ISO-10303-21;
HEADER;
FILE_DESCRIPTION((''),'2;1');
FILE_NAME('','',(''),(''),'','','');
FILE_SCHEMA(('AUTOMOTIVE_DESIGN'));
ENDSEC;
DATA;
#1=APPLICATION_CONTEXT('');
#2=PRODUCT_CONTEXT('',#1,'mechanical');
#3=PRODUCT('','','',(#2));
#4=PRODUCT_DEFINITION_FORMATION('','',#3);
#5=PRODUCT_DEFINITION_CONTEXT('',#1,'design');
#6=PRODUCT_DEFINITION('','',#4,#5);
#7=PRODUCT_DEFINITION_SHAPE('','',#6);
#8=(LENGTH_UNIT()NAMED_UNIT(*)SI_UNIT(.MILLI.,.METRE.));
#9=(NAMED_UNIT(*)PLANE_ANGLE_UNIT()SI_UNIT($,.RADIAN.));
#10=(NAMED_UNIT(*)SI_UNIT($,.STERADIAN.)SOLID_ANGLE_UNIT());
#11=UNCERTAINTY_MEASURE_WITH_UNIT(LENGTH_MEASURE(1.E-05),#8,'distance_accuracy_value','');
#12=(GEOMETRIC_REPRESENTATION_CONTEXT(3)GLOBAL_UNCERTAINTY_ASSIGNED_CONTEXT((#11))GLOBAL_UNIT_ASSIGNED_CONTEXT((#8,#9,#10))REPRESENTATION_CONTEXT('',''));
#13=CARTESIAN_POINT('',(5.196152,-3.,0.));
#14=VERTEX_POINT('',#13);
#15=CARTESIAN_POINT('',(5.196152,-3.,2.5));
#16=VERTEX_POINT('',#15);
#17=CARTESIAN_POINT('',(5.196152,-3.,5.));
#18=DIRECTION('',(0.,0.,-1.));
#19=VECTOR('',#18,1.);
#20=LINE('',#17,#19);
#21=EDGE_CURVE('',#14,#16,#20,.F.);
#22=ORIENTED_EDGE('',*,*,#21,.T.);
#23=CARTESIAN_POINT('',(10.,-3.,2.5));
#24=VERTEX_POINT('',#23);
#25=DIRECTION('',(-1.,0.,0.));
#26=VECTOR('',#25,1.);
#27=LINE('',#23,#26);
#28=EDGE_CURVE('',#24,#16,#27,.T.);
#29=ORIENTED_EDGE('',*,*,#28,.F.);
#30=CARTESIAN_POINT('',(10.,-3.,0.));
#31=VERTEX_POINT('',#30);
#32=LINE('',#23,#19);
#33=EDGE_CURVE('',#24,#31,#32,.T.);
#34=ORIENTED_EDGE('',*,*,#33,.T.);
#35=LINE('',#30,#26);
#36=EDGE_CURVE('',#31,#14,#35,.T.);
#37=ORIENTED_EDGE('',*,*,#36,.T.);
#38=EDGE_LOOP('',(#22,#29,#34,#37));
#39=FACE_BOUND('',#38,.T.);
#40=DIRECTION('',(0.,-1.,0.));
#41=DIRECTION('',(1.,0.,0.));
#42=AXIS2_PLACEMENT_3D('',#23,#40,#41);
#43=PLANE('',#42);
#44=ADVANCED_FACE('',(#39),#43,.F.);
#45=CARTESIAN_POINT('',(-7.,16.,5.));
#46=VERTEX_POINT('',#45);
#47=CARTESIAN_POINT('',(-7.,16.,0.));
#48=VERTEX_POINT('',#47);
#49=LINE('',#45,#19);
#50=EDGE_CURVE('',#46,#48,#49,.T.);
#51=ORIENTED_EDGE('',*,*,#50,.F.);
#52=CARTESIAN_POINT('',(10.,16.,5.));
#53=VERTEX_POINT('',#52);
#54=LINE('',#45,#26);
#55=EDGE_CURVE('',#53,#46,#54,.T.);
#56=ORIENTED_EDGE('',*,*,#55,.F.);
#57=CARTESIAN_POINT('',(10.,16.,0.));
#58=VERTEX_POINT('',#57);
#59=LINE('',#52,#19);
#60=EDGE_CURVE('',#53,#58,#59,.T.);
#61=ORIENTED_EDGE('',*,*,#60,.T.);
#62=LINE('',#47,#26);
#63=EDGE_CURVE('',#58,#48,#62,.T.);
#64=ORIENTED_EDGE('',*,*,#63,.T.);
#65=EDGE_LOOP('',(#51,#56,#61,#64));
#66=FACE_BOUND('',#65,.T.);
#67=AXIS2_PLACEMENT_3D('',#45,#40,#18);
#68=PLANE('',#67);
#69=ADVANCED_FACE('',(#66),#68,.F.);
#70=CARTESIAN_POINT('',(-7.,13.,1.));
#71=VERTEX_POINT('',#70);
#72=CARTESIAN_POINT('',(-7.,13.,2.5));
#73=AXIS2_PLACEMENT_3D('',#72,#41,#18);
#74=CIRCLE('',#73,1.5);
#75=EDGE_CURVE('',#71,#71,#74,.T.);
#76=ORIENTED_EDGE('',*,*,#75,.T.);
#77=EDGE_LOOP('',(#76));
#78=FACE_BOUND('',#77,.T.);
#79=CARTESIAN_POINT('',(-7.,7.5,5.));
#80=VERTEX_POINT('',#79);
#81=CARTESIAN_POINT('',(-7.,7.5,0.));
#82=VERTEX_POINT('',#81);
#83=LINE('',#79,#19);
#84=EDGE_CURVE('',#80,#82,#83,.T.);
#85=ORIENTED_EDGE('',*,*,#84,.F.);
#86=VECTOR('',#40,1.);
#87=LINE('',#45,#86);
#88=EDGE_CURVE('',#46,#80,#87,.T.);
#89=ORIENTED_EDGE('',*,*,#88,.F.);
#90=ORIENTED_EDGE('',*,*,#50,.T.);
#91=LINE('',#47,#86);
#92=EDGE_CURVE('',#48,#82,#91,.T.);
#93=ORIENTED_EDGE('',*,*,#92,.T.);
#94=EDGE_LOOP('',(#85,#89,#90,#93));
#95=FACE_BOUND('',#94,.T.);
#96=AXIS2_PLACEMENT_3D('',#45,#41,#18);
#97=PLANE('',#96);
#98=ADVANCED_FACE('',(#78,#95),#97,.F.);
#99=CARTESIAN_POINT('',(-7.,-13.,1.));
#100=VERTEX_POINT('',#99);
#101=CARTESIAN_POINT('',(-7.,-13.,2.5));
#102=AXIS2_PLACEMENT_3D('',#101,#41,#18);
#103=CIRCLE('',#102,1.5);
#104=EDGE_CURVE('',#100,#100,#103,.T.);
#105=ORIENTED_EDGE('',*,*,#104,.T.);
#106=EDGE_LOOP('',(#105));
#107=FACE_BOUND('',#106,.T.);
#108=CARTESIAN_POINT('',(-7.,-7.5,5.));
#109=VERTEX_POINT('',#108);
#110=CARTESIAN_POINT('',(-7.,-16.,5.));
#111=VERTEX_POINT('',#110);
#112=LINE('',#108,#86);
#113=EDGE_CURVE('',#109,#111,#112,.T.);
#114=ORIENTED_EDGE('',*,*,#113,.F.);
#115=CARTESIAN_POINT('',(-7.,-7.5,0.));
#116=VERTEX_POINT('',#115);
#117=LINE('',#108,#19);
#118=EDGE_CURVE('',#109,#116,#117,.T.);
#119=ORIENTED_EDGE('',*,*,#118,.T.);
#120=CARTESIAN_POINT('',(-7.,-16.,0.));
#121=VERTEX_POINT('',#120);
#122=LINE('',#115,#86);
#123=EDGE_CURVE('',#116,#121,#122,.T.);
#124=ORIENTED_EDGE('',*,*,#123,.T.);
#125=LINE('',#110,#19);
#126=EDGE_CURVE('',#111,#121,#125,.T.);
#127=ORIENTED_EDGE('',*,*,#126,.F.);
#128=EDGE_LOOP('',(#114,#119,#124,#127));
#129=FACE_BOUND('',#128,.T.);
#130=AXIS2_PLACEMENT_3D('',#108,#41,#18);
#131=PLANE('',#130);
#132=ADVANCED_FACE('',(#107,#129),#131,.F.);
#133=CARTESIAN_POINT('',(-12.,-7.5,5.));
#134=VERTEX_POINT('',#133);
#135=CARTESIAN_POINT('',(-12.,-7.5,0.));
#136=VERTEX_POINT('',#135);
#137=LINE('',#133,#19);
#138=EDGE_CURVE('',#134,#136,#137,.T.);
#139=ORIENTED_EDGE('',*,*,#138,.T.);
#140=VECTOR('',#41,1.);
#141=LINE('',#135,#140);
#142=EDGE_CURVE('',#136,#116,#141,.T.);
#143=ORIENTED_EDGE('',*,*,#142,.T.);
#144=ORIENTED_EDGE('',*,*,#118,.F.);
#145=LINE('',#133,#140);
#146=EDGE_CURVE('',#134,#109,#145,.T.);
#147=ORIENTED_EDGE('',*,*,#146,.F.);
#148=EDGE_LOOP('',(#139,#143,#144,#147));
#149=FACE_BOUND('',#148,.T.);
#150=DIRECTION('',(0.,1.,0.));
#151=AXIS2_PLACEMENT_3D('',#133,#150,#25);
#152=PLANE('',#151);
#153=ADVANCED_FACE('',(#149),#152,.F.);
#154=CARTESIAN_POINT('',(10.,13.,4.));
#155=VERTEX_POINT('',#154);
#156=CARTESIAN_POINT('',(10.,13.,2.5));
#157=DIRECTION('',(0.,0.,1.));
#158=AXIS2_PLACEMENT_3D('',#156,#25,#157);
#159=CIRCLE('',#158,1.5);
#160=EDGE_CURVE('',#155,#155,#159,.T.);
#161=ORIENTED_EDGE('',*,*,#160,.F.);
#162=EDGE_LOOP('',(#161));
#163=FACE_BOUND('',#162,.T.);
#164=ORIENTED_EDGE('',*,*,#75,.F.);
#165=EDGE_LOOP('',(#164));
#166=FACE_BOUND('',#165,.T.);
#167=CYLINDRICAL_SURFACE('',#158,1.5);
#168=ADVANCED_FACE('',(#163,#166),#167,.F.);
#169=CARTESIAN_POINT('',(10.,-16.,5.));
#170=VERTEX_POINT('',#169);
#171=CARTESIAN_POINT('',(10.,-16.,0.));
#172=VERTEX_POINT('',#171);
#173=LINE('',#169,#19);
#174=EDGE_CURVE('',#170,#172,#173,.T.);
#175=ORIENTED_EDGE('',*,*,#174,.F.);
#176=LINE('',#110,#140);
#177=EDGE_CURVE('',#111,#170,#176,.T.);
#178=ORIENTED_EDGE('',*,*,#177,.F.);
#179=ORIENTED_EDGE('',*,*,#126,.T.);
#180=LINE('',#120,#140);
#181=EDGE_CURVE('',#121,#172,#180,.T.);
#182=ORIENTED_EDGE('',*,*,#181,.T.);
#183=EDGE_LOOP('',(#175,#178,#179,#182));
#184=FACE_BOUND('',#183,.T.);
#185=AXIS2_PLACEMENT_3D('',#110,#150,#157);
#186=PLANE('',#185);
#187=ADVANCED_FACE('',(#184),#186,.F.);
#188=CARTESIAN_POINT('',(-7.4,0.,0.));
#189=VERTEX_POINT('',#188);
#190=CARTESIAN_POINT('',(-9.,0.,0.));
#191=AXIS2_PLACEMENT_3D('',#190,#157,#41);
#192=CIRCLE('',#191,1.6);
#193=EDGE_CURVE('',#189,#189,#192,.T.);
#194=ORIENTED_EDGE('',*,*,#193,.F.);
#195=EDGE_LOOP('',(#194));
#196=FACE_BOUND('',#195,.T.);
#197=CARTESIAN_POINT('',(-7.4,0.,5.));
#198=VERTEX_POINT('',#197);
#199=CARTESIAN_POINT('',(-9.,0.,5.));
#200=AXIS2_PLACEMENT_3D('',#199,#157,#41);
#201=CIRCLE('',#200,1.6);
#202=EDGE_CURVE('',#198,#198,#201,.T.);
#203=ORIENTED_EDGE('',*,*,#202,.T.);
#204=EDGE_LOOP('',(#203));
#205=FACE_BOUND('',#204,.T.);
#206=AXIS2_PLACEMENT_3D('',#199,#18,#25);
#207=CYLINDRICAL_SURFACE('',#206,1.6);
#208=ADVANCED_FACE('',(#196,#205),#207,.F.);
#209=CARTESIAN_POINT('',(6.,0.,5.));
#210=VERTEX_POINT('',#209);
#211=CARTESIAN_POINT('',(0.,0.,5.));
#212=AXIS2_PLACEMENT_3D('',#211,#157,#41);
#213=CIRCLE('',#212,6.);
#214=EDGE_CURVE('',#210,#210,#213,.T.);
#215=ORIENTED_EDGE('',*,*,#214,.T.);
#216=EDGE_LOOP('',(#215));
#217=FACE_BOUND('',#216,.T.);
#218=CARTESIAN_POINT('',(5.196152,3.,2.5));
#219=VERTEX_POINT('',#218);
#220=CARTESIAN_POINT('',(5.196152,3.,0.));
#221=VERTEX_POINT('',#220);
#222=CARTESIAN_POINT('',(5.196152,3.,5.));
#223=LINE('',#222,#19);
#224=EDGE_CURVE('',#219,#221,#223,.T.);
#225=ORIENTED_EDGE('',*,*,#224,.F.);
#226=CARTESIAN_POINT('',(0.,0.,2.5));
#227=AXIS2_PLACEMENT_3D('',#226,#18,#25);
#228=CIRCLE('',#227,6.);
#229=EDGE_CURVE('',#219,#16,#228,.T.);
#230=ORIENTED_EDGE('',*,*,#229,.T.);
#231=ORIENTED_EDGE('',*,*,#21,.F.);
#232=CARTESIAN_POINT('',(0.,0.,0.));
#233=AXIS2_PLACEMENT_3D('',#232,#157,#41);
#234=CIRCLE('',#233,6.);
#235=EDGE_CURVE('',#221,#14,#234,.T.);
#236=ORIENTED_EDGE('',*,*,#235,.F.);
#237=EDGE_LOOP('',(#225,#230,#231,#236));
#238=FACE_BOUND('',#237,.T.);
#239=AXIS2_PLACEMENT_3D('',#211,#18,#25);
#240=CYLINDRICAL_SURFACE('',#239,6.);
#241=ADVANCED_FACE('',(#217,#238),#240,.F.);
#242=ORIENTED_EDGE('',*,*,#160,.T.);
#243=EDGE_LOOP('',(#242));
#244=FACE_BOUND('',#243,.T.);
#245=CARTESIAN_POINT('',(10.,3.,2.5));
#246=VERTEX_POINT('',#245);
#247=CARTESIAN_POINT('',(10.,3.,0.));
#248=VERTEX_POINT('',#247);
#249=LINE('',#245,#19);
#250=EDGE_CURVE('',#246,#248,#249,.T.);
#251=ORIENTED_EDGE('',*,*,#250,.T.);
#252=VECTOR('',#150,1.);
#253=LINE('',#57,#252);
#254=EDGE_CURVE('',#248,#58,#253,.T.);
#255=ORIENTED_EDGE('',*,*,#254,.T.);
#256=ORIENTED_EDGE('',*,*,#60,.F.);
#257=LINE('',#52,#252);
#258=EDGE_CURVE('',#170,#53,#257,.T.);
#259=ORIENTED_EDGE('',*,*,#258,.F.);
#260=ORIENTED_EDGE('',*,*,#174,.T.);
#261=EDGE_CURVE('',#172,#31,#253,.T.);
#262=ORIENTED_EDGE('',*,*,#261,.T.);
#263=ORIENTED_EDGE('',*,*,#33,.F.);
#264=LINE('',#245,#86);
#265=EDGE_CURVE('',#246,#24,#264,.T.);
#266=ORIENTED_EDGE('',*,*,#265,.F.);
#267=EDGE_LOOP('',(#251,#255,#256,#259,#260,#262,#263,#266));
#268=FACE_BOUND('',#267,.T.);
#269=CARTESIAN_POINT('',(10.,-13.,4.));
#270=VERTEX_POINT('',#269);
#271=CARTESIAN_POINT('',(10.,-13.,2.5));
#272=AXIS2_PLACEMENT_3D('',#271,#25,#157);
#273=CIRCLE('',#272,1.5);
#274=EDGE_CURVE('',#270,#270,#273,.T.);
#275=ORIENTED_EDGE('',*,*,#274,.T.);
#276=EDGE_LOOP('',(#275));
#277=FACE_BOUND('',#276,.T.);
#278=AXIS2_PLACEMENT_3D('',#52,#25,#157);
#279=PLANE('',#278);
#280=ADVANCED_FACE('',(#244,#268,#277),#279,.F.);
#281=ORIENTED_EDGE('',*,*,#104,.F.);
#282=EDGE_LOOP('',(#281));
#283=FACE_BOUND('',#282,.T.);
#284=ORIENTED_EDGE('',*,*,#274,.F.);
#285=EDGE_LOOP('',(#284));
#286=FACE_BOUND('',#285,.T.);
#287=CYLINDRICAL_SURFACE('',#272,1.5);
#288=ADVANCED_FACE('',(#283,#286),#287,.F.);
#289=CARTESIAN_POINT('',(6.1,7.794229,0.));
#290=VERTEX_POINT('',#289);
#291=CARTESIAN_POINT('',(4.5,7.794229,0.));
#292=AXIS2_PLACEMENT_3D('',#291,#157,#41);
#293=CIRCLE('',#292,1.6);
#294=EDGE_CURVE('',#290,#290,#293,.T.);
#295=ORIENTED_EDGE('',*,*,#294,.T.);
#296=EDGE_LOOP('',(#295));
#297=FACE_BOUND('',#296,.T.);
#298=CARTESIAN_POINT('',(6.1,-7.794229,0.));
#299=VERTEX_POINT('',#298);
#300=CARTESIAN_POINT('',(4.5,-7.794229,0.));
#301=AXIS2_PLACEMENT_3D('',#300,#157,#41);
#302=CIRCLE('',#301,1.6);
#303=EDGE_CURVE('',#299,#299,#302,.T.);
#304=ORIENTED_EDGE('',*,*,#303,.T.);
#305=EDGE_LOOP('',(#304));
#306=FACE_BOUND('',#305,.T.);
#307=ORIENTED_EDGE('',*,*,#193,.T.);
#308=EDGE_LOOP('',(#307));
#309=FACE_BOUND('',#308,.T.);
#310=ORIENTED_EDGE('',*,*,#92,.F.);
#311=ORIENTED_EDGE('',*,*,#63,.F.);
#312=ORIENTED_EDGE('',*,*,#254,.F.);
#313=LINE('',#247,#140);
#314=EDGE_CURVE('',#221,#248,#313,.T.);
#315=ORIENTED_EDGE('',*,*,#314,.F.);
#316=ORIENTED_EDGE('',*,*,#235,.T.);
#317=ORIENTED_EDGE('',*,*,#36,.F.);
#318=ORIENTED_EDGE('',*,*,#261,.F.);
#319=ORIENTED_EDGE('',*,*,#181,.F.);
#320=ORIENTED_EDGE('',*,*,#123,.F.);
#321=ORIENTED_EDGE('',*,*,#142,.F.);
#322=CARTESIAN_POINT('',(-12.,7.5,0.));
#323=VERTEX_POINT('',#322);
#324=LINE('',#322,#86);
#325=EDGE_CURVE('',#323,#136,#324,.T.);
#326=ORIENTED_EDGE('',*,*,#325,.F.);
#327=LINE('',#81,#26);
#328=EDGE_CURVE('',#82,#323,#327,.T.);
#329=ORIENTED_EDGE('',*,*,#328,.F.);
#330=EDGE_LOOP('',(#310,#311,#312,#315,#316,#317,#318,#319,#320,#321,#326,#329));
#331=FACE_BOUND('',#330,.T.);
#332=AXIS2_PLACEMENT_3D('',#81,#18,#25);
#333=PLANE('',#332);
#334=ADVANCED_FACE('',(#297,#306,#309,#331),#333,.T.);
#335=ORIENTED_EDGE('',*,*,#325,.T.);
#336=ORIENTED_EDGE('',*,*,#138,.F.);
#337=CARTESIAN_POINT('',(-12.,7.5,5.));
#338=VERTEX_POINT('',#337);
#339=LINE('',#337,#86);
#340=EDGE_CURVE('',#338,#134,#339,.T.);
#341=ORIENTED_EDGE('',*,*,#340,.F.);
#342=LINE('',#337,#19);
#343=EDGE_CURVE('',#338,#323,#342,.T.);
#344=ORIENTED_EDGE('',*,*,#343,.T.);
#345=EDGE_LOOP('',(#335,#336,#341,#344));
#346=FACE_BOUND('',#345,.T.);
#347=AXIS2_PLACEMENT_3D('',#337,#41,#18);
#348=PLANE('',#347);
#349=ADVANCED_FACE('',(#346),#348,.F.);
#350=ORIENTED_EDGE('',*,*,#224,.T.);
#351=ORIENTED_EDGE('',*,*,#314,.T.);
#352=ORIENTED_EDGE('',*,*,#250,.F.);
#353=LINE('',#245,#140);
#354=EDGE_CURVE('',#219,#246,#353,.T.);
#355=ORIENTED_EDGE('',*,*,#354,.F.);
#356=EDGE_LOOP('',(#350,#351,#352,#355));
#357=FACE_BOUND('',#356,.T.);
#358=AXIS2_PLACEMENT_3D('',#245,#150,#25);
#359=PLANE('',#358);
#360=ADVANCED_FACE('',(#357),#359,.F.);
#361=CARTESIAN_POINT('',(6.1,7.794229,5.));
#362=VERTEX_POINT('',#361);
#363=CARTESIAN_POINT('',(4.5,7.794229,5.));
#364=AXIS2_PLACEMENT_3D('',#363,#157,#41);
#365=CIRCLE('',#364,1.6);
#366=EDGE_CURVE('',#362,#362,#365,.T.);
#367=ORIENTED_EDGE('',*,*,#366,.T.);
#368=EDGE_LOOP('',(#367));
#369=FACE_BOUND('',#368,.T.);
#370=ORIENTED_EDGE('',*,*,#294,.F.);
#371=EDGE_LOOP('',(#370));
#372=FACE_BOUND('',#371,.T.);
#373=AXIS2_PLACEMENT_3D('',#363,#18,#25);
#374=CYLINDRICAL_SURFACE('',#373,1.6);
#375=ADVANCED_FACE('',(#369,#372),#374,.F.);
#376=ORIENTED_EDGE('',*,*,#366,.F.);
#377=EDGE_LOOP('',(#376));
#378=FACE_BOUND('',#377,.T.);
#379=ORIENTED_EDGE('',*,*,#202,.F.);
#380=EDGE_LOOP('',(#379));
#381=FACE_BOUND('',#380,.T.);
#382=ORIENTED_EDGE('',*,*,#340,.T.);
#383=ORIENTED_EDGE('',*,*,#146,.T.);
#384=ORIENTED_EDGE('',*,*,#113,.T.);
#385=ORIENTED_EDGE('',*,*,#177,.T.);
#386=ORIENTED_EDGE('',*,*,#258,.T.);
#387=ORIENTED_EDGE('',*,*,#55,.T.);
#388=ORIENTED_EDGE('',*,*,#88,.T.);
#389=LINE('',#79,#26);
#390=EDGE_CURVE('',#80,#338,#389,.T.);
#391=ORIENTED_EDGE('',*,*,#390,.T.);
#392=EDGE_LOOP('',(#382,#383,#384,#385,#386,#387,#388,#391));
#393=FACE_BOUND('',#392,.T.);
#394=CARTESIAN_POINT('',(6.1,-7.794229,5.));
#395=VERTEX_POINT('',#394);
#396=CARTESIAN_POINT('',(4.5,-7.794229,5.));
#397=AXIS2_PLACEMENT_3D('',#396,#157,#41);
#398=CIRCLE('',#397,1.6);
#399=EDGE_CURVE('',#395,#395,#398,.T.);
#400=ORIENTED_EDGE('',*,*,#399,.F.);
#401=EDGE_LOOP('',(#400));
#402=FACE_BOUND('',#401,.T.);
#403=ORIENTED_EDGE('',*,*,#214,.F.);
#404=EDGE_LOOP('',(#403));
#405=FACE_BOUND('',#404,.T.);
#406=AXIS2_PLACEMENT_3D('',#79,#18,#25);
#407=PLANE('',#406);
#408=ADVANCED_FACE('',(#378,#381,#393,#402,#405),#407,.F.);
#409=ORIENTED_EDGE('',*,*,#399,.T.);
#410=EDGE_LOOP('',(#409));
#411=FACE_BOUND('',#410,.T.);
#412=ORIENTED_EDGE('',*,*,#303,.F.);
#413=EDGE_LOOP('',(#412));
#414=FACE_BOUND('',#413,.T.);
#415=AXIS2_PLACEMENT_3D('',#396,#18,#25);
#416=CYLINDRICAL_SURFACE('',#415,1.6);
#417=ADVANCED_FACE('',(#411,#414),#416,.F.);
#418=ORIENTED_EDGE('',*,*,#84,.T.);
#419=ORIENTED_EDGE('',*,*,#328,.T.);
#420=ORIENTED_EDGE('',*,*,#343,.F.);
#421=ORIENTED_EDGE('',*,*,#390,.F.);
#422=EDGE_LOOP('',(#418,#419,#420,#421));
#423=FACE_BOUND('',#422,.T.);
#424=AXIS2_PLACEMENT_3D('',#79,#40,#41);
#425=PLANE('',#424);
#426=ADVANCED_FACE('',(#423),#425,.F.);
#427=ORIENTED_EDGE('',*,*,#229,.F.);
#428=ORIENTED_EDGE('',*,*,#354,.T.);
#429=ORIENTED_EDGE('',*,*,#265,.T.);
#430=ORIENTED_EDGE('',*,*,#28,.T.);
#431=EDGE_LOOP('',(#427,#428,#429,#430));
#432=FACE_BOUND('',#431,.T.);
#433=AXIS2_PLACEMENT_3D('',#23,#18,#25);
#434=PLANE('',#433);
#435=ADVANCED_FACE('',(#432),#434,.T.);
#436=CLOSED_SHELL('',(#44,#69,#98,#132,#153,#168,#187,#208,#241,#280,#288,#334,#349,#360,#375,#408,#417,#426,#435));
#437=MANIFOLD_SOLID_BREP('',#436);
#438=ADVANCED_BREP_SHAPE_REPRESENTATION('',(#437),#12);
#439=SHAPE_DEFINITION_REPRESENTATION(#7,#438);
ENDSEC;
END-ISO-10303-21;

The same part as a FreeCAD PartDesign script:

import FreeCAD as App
import Part
import Sketcher
Q = App.Units.Quantity


def add_polygon(sketch, points):
    """Adds a closed chain of lines whose ends are joined by coincident constraints."""
    first, n = sketch.GeometryCount, len(points)
    for a, b in zip(points, points[1:] + points[:1]):
        sketch.addGeometry(Part.LineSegment(App.Vector(*a, 0), App.Vector(*b, 0)), False)
    for i in range(n):
        sketch.addConstraint(Sketcher.Constraint("Coincident", first + i, 2, first + (i + 1) % n, 1))

doc = App.newDocument("Part")
body = doc.addObject("PartDesign::Body", "Body")

# Sketch on XY plane
sketch1 = doc.addObject("Sketcher::SketchObject", "Sketch")
body.addObject(sketch1)
sketch1.AttachmentSupport = (doc.XY_Plane, [""])
sketch1.MapMode = "FlatFace"
add_polygon(sketch1, [(10, 16), (-7, 16), (-7, 7.5), (-12, 7.5), (-12, -7.5), (-7, -7.5), (-7, -16), (10, -16)])  # lines 0-7
sketch1.addGeometry(Part.Circle(App.Vector(4.5, -7.794229, 0), App.Vector(0, 0, 1), 1.6), False)  # 8
sketch1.addGeometry(Part.Circle(App.Vector(0, 0, 0), App.Vector(0, 0, 1), 6), False)  # 9
sketch1.addGeometry(Part.Circle(App.Vector(-9, 0, 0), App.Vector(0, 0, 1), 1.6), False)  # 10
sketch1.addGeometry(Part.Circle(App.Vector(4.5, 7.794229, 0), App.Vector(0, 0, 1), 1.6), False)  # 11
sketch1.addConstraint([
    Sketcher.Constraint("Horizontal", 0),
    Sketcher.Constraint("Vertical", 1),
    Sketcher.Constraint("Horizontal", 2),
    Sketcher.Constraint("Vertical", 3),
    Sketcher.Constraint("Horizontal", 4),
    Sketcher.Constraint("Vertical", 5),
    Sketcher.Constraint("Horizontal", 6),
    Sketcher.Constraint("Vertical", 7),
    Sketcher.Constraint("Coincident", 9, 3, -1, 1),
    Sketcher.Constraint("Equal", 8, 10),
    Sketcher.Constraint("Equal", 10, 11),
    Sketcher.Constraint("Symmetric", 8, 3, 11, 3, -1),
    Sketcher.Constraint("Symmetric", 1, 2, 4, 2, -1),
    Sketcher.Constraint("PointOnObject", 10, 3, -1),
    Sketcher.Constraint("Equal", 1, 5),
    Sketcher.Constraint("Diameter", 9, Q("12 mm")),
    Sketcher.Constraint("Diameter", 8, Q("3.2 mm")),
    Sketcher.Constraint("DistanceX", 0, 2, 0, 1, Q("17 mm")),
    Sketcher.Constraint("DistanceX", 2, 2, 2, 1, Q("5 mm")),
    Sketcher.Constraint("DistanceY", 3, 2, 3, 1, Q("15 mm")),
    Sketcher.Constraint("DistanceY", 7, 1, 7, 2, Q("32 mm")),
    Sketcher.Constraint("DistanceX", 10, 3, -1, 1, Q("9 mm")),
    Sketcher.Constraint("DistanceX", 0, 2, -1, 1, Q("7 mm")),
    Sketcher.Constraint("DistanceX", -1, 1, 8, 3, Q("4.5 mm")),
    Sketcher.Constraint("DistanceY", 8, 3, -1, 1, Q("7.794229 mm")),
])
pad1 = doc.addObject("PartDesign::Pad", "Pad")
body.addObject(pad1)
pad1.Profile = sketch1
pad1.Length = 5

# Sketch on XY plane
sketch2 = doc.addObject("Sketcher::SketchObject", "Sketch001")
body.addObject(sketch2)
sketch2.AttachmentSupport = (doc.XY_Plane, [""])
sketch2.MapMode = "FlatFace"
add_polygon(sketch2, [(10, 3), (10, -3), (0, -3), (0, 3)])  # lines 0-3
sketch2.addConstraint([
    Sketcher.Constraint("Vertical", 0),
    Sketcher.Constraint("Horizontal", 1),
    Sketcher.Constraint("Vertical", 2),
    Sketcher.Constraint("Horizontal", 3),
    Sketcher.Constraint("Symmetric", 1, 2, 2, 2, -1, 1),
    Sketcher.Constraint("DistanceX", 1, 2, 1, 1, Q("10 mm")),
    Sketcher.Constraint("DistanceY", 0, 2, 0, 1, Q("6 mm")),
])
pocket1 = doc.addObject("PartDesign::Pocket", "Pocket")
body.addObject(pocket1)
pocket1.Profile = sketch2
pocket1.Length = 2.5
pocket1.Reversed = True

# Sketch on YZ plane
sketch3 = doc.addObject("Sketcher::SketchObject", "Sketch002")
body.addObject(sketch3)
sketch3.AttachmentSupport = (doc.YZ_Plane, [""])
sketch3.MapMode = "FlatFace"
sketch3.AttachmentOffset = App.Placement(App.Vector(0, 0, -12), App.Rotation())
sketch3.addGeometry([
    Part.Circle(App.Vector(13, 2.5, 0), App.Vector(0, 0, 1), 1.5),
    Part.Circle(App.Vector(-13, 2.5, 0), App.Vector(0, 0, 1), 1.5),
], False)
sketch3.addConstraint([
    Sketcher.Constraint("Equal", 0, 1),
    Sketcher.Constraint("Symmetric", 0, 3, 1, 3, -2),
    Sketcher.Constraint("Diameter", 0, Q("3 mm")),
    Sketcher.Constraint("DistanceX", -1, 1, 0, 3, Q("13 mm")),
    Sketcher.Constraint("DistanceY", -1, 1, 0, 3, Q("2.5 mm")),
])
pocket2 = doc.addObject("PartDesign::Pocket", "Pocket001")
body.addObject(pocket2)
pocket2.Profile = sketch3
pocket2.Type = "ThroughAll"
pocket2.Reversed = True

doc.recompute()
